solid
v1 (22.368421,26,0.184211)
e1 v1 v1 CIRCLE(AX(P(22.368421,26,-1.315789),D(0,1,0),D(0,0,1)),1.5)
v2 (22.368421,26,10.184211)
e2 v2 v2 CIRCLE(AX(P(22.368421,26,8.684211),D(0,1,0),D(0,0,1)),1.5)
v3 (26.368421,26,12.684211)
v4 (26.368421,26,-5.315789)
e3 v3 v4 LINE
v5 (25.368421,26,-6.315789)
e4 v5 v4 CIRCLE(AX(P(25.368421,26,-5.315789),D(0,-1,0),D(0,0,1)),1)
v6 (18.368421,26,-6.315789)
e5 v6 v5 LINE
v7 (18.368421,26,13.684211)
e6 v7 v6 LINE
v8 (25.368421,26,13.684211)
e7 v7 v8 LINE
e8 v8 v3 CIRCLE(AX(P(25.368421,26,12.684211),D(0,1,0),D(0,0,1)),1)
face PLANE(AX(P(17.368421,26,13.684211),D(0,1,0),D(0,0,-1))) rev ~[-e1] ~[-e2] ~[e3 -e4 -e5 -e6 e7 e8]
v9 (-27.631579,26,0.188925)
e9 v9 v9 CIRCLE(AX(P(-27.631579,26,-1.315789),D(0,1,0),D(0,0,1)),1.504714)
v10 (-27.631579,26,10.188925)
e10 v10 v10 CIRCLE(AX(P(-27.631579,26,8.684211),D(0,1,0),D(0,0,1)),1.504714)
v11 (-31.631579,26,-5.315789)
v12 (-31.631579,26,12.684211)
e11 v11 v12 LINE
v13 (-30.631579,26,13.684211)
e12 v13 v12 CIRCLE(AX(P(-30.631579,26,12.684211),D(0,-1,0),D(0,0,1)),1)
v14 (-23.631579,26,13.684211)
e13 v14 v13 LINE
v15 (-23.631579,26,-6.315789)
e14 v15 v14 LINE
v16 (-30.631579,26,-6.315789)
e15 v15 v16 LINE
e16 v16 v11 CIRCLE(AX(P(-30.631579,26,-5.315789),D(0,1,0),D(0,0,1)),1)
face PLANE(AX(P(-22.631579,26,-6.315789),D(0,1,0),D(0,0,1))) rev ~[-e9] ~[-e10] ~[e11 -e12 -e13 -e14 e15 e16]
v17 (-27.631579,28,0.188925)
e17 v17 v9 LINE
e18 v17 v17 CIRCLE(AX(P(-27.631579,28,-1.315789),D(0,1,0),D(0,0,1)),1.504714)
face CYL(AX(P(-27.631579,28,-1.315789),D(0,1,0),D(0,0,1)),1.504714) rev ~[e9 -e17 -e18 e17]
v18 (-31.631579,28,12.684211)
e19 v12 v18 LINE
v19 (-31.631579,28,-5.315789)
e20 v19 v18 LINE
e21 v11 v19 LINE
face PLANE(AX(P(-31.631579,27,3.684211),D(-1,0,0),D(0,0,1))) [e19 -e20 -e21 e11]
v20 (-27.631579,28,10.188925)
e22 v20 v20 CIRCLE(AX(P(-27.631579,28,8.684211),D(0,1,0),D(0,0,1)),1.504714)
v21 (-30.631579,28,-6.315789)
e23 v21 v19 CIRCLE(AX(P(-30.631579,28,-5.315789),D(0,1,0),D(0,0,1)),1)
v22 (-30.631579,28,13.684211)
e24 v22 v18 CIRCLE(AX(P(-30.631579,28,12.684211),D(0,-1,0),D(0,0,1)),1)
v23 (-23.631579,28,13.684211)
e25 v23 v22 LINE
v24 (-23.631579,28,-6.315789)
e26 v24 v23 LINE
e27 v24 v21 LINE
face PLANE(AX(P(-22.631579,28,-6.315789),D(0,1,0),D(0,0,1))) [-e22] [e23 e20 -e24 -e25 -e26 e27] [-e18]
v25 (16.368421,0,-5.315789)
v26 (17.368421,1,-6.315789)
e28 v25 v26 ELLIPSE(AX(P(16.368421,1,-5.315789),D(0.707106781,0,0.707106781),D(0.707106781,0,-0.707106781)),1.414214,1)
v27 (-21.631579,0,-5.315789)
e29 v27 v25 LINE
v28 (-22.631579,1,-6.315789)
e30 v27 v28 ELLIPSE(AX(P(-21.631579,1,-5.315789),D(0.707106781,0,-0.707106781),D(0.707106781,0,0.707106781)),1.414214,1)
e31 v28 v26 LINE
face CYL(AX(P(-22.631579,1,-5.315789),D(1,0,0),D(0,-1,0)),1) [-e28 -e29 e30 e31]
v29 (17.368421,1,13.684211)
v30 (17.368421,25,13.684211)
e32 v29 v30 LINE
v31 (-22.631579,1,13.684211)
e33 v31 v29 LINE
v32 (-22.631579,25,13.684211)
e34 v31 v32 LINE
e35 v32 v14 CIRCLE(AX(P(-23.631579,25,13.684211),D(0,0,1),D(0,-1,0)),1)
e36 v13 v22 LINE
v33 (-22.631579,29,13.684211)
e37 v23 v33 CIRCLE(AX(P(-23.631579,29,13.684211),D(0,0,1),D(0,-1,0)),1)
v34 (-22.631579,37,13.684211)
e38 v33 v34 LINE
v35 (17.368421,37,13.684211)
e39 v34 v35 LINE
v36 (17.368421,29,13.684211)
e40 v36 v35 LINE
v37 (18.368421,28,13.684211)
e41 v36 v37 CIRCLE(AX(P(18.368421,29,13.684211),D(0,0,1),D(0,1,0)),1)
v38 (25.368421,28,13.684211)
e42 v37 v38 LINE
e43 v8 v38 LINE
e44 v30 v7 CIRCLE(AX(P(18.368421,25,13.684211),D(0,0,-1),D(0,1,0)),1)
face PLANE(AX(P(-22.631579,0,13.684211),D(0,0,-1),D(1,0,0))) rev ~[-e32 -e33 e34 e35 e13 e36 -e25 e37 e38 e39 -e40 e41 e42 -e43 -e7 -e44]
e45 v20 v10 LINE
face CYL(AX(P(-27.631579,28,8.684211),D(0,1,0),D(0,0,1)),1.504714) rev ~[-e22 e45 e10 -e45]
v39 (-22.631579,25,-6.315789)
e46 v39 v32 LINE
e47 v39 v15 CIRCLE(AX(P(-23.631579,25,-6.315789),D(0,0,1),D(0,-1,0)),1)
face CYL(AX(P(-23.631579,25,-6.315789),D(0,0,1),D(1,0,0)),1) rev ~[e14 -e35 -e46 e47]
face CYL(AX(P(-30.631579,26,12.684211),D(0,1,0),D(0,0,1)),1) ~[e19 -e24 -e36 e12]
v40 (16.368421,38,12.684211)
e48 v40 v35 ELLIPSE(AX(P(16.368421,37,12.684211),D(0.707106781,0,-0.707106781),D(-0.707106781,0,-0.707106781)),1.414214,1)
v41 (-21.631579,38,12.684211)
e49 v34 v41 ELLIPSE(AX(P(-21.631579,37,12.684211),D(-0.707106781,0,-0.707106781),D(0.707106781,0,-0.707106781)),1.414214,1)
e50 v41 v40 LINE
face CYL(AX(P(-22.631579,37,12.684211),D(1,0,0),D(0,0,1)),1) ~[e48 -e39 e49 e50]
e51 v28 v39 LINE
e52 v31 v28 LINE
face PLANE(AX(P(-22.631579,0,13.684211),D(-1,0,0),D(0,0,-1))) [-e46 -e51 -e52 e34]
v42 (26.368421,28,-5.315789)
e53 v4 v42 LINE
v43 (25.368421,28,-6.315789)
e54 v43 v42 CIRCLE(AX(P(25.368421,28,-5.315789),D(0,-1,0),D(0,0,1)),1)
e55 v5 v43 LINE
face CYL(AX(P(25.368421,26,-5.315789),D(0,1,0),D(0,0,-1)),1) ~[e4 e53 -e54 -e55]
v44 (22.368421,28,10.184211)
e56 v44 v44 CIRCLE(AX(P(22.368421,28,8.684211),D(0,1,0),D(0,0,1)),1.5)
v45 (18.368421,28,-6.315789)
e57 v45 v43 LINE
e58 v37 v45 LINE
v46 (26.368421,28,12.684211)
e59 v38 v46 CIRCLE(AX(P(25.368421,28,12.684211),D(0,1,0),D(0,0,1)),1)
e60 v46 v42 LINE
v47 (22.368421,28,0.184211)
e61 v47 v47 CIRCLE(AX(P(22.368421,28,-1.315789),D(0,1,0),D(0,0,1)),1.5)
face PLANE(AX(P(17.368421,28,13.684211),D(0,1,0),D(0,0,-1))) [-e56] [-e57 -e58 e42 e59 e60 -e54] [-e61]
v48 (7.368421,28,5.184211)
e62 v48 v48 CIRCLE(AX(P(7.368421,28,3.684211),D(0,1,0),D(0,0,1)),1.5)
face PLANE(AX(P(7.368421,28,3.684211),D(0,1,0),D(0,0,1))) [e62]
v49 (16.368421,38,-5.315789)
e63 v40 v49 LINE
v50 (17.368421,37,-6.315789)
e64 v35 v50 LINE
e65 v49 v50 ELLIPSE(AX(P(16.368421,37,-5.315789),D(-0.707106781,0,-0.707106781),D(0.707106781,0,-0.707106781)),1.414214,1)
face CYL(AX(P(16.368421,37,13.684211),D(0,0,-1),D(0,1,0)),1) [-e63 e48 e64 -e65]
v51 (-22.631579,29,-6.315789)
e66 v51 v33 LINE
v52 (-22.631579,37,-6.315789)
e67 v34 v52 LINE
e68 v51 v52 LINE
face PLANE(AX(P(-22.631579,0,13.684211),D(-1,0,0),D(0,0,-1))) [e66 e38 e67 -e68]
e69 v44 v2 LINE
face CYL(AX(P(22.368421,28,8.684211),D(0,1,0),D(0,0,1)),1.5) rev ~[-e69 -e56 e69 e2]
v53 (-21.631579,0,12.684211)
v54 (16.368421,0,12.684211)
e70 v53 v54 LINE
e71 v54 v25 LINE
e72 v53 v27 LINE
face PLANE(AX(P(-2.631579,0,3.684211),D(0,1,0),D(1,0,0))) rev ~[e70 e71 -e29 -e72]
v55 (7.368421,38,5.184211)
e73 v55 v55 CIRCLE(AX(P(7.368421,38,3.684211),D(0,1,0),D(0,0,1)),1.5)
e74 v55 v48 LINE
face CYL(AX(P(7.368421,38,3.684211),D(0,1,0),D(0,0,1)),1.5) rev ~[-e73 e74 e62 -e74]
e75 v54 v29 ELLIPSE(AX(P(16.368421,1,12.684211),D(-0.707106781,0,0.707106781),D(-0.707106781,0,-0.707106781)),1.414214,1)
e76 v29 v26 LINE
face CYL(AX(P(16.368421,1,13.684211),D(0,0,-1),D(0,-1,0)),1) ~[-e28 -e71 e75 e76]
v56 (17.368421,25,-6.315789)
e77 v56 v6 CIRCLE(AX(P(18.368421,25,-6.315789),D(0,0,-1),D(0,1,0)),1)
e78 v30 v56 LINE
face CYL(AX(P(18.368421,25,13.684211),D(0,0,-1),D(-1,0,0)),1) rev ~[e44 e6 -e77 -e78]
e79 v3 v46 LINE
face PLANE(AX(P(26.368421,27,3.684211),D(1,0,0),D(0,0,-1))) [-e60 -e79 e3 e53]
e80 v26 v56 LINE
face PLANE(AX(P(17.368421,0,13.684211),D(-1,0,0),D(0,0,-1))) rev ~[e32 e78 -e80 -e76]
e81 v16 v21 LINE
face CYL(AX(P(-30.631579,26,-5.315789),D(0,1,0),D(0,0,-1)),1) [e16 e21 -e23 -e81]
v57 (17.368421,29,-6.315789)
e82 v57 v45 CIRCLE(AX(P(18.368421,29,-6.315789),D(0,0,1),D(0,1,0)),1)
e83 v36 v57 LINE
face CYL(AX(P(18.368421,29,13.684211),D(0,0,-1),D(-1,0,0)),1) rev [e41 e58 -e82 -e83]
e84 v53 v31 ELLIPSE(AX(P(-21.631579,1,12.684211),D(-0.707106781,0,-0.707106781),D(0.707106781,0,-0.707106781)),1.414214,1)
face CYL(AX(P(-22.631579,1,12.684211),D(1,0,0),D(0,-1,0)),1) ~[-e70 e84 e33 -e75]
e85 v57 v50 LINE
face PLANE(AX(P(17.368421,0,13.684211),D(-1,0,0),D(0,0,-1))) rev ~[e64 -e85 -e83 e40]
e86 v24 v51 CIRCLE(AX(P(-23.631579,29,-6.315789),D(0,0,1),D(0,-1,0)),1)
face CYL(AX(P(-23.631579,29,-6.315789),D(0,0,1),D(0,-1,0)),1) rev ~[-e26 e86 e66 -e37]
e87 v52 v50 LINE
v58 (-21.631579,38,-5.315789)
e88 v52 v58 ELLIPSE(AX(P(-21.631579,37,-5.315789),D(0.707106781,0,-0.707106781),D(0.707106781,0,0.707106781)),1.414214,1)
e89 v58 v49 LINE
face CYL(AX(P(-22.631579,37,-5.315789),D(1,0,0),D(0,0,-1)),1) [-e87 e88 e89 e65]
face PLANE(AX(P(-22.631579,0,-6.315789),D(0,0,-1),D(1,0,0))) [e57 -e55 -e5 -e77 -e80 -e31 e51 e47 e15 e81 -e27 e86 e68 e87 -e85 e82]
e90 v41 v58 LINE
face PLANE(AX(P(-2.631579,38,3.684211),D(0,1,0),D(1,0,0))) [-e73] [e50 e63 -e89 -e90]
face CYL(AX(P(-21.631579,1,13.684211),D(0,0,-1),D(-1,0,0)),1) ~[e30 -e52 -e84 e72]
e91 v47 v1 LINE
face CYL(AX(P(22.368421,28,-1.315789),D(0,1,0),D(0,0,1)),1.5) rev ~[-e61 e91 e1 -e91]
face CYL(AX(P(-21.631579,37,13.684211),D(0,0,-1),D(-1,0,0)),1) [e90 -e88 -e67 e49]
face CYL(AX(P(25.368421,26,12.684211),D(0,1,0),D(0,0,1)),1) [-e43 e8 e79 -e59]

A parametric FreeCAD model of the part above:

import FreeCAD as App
import Part
import Sketcher
Q = App.Units.Quantity


def edges_at(feature, points):
    """Names of the edges that pass closest to the given points."""
    edges = feature.Shape.Edges
    near = lambda p: min(range(len(edges)), key=lambda i: edges[i].distToShape(Part.Vertex(*p))[0])
    return sorted({f"Edge{near(p) + 1}" for p in points})


def add_polygon(sketch, points):
    """Adds a closed chain of lines whose ends are joined by coincident constraints."""
    first, n = sketch.GeometryCount, len(points)
    for a, b in zip(points, points[1:] + points[:1]):
        sketch.addGeometry(Part.LineSegment(App.Vector(*a, 0), App.Vector(*b, 0)), False)
    for i in range(n):
        sketch.addConstraint(Sketcher.Constraint("Coincident", first + i, 2, first + (i + 1) % n, 1))

doc = App.newDocument("Part")
body = doc.addObject("PartDesign::Body", "Body")

# Sketch on XZ plane
sketch1 = doc.addObject("Sketcher::SketchObject", "Sketch")
body.addObject(sketch1)
sketch1.AttachmentSupport = (doc.XZ_Plane, [""])
sketch1.MapMode = "FlatFace"
add_polygon(sketch1, [(-22.631579, -6.315789), (-22.631579, 13.684211), (17.368421, 13.684211), (17.368421, -6.315789)])  # lines 0-3
sketch1.addConstraint([
    Sketcher.Constraint("Vertical", 0),
    Sketcher.Constraint("Horizontal", 1),
    Sketcher.Constraint("Vertical", 2),
    Sketcher.Constraint("Horizontal", 3),
    Sketcher.Constraint("DistanceX", 1, 1, 1, 2, Q("40 mm")),
    Sketcher.Constraint("DistanceY", 0, 1, 0, 2, Q("20 mm")),
    Sketcher.Constraint("DistanceX", 0, 2, -1, 1, Q("22.631579 mm")),
    Sketcher.Constraint("DistanceY", -1, 1, 0, 2, Q("13.684211 mm")),
])
pad1 = doc.addObject("PartDesign::Pad", "Pad")
body.addObject(pad1)
pad1.Profile = sketch1
pad1.Length = 38
pad1.Reversed = True

# Sketch on XZ plane
sketch2 = doc.addObject("Sketcher::SketchObject", "Sketch001")
body.addObject(sketch2)
sketch2.AttachmentSupport = (doc.XZ_Plane, [""])
sketch2.MapMode = "FlatFace"
sketch2.AttachmentOffset = App.Placement(App.Vector(0, 0, -38), App.Rotation())
sketch2.addGeometry(Part.Circle(App.Vector(7.368421, 3.684211, 0), App.Vector(0, 0, 1), 1.5), False)
sketch2.addConstraint([
    Sketcher.Constraint("Diameter", 0, Q("3 mm")),
    Sketcher.Constraint("DistanceX", -1, 1, 0, 3, Q("7.368421 mm")),
    Sketcher.Constraint("DistanceY", -1, 1, 0, 3, Q("3.684211 mm")),
])
pocket1 = doc.addObject("PartDesign::Pocket", "Pocket")
body.addObject(pocket1)
pocket1.Profile = sketch2
pocket1.Length = 10
pocket1.Reversed = True

# Sketch on YZ plane
sketch3 = doc.addObject("Sketcher::SketchObject", "Sketch002")
body.addObject(sketch3)
sketch3.AttachmentSupport = (doc.YZ_Plane, [""])
sketch3.MapMode = "FlatFace"
sketch3.AttachmentOffset = App.Placement(App.Vector(0, 0, 17.368421), App.Rotation())
add_polygon(sketch3, [(28, 13.684211), (26, 13.684211), (26, -6.315789), (28, -6.315789)])  # lines 0-3
sketch3.addConstraint([
    Sketcher.Constraint("Horizontal", 0),
    Sketcher.Constraint("Vertical", 1),
    Sketcher.Constraint("Horizontal", 2),
    Sketcher.Constraint("Vertical", 3),
    Sketcher.Constraint("DistanceX", 0, 2, 0, 1, Q("2 mm")),
    Sketcher.Constraint("DistanceY", 1, 2, 1, 1, Q("20 mm")),
    Sketcher.Constraint("DistanceX", -1, 1, 0, 2, Q("26 mm")),
    Sketcher.Constraint("DistanceY", -1, 1, 0, 2, Q("13.684211 mm")),
])
pad2 = doc.addObject("PartDesign::Pad", "Pad001")
body.addObject(pad2)
pad2.Profile = sketch3
pad2.Length = 9

# Sketch on XZ plane
sketch4 = doc.addObject("Sketcher::SketchObject", "Sketch003")
body.addObject(sketch4)
sketch4.AttachmentSupport = (doc.XZ_Plane, [""])
sketch4.MapMode = "FlatFace"
sketch4.AttachmentOffset = App.Placement(App.Vector(0, 0, -28), App.Rotation())
sketch4.addGeometry([
    Part.Circle(App.Vector(22.368421, -1.315789, 0), App.Vector(0, 0, 1), 1.5),
    Part.Circle(App.Vector(22.368421, 8.684211, 0), App.Vector(0, 0, 1), 1.5),
], False)
sketch4.addConstraint([
    Sketcher.Constraint("Equal", 0, 1),
    Sketcher.Constraint("Vertical", 0, 3, 1, 3),
    Sketcher.Constraint("Diameter", 0, Q("3 mm")),
    Sketcher.Constraint("DistanceY", 0, 3, 1, 3, Q("10 mm")),
    Sketcher.Constraint("DistanceX", -1, 1, 0, 3, Q("22.368421 mm")),
    Sketcher.Constraint("DistanceY", 0, 3, -1, 1, Q("1.315789 mm")),
])
pocket2 = doc.addObject("PartDesign::Pocket", "Pocket001")
body.addObject(pocket2)
pocket2.Profile = sketch4
pocket2.Type = "ThroughAll"
pocket2.Reversed = True

# Sketch on YZ plane
sketch5 = doc.addObject("Sketcher::SketchObject", "Sketch004")
body.addObject(sketch5)
sketch5.AttachmentSupport = (doc.YZ_Plane, [""])
sketch5.MapMode = "FlatFace"
sketch5.AttachmentOffset = App.Placement(App.Vector(0, 0, -22.631579), App.Rotation())
add_polygon(sketch5, [(28, -6.315789), (26, -6.315789), (26, 13.684211), (28, 13.684211)])  # lines 0-3
sketch5.addConstraint([
    Sketcher.Constraint("Horizontal", 0),
    Sketcher.Constraint("Vertical", 1),
    Sketcher.Constraint("Horizontal", 2),
    Sketcher.Constraint("Vertical", 3),
    Sketcher.Constraint("DistanceX", 0, 2, 0, 1, Q("2 mm")),
    Sketcher.Constraint("DistanceY", 1, 1, 1, 2, Q("20 mm")),
    Sketcher.Constraint("DistanceX", -1, 1, 0, 2, Q("26 mm")),
    Sketcher.Constraint("DistanceY", 0, 2, -1, 1, Q("6.315789 mm")),
])
pad3 = doc.addObject("PartDesign::Pad", "Pad002")
body.addObject(pad3)
pad3.Profile = sketch5
pad3.Length = 9
pad3.Reversed = True

# Sketch on XZ plane
sketch6 = doc.addObject("Sketcher::SketchObject", "Sketch005")
body.addObject(sketch6)
sketch6.AttachmentSupport = (doc.XZ_Plane, [""])
sketch6.MapMode = "FlatFace"
sketch6.AttachmentOffset = App.Placement(App.Vector(0, 0, -28), App.Rotation())
sketch6.addGeometry([
    Part.Circle(App.Vector(-27.631579, -1.315789, 0), App.Vector(0, 0, 1), 1.504714),
    Part.Circle(App.Vector(-27.631579, 8.684211, 0), App.Vector(0, 0, 1), 1.504714),
], False)
sketch6.addConstraint([
    Sketcher.Constraint("Equal", 0, 1),
    Sketcher.Constraint("Vertical", 0, 3, 1, 3),
    Sketcher.Constraint("DistanceY", 0, 3, 1, 3, Q("10 mm")),
    Sketcher.Constraint("Diameter", 0, Q("3.009429 mm")),
    Sketcher.Constraint("DistanceX", 0, 3, -1, 1, Q("27.631579 mm")),
    Sketcher.Constraint("DistanceY", 0, 3, -1, 1, Q("1.315789 mm")),
])
pocket3 = doc.addObject("PartDesign::Pocket", "Pocket002")
body.addObject(pocket3)
pocket3.Profile = sketch6
pocket3.Type = "ThroughAll"
pocket3.Reversed = True
doc.recompute()

fillet = doc.addObject("PartDesign::Fillet", "Fillet")
body.addObject(fillet)
fillet.Base = (pocket3, edges_at(pocket3, [
    (17.368, 38, 3.684),
    (-2.632, 38, -6.316),
    (17.368, 26, 3.684),
    (26.368, 27, 13.684),
    (26.368, 27, -6.316),
    (17.368, 28, 3.684),
    (-22.632, 38, 3.684),
    (-2.632, 0, -6.316),
    (17.368, 0, 3.684),
    (-22.632, 26, 3.684),
    (-31.632, 27, -6.316),
    (-31.632, 27, 13.684),
    (-22.632, 28, 3.684),
    (-2.632, 0, 13.684),
    (-22.632, 0, 3.684),
    (-2.632, 38, 13.684),
]))
fillet.Radius = 1

doc.recompute()
